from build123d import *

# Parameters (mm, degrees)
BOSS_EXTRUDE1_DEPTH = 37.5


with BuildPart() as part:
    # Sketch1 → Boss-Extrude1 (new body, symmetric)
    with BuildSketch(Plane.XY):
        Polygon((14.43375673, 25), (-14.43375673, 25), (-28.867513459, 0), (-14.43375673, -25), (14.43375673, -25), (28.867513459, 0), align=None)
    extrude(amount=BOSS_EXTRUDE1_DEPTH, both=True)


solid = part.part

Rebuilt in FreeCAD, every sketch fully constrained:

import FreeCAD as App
import Part
import Sketcher

V = App.Vector
Q = App.Units.Quantity


def add_polygon(sketch, points):
    """Adds a closed chain of lines whose ends are joined by coincident constraints."""
    first, n = sketch.GeometryCount, len(points)
    for a, b in zip(points, points[1:] + points[:1]):
        sketch.addGeometry(Part.LineSegment(App.Vector(*a, 0), App.Vector(*b, 0)), False)
    for i in range(n):
        sketch.addConstraint(Sketcher.Constraint("Coincident", first + i, 2, first + (i + 1) % n, 1))

doc = App.newDocument("Part")
params = doc.addObject("Spreadsheet::Sheet", "Params")
for row, (alias, value) in enumerate([
    ("pad1_length", "75 mm"),
], start=1):
    params.set(f"A{row}", alias)
    params.set(f"B{row}", "=" + value)
    params.setAlias(f"B{row}", alias)

body = doc.addObject("PartDesign::Body", "Body")

# Sketch on XY plane
sketch1 = body.newObject("Sketcher::SketchObject", "Sketch")
sketch1.AttachmentSupport = (doc.getObject("XY_Plane"), [""])
sketch1.MapMode = "FlatFace"
add_polygon(sketch1, [(14.433757, 25), (-14.433757, 25), (-28.867513, 0), (-14.433757, -25), (14.433757, -25), (28.867513, 0)])  # lines 0-5
sketch1.addConstraint([
    Sketcher.Constraint("Horizontal", 0),
    Sketcher.Constraint("Horizontal", 3),
    Sketcher.Constraint("Symmetric", 0, 2, 3, 2, -1, 1),
    Sketcher.Constraint("Symmetric", 1, 2, 4, 2, -1, 1),
    Sketcher.Constraint("PointOnObject", 1, 2, -1),
    Sketcher.Constraint("Parallel", 2, 5),
    Sketcher.Constraint("Vertical", 0, 2, 2, 2),
    Sketcher.Constraint("Angle", 1, Q("-120 deg")),
    Sketcher.Constraint("DistanceY", -1, 1, 0, 2, Q("25 mm")),
    Sketcher.Constraint("DistanceX", 0, 2, 0, 1, Q("28.867513 mm")),
])
pad1 = body.newObject("PartDesign::Pad", "Pad")
pad1.Profile = sketch1
pad1.setExpression("Length", "Params.pad1_length")
pad1.Midplane = True

doc.recompute()
